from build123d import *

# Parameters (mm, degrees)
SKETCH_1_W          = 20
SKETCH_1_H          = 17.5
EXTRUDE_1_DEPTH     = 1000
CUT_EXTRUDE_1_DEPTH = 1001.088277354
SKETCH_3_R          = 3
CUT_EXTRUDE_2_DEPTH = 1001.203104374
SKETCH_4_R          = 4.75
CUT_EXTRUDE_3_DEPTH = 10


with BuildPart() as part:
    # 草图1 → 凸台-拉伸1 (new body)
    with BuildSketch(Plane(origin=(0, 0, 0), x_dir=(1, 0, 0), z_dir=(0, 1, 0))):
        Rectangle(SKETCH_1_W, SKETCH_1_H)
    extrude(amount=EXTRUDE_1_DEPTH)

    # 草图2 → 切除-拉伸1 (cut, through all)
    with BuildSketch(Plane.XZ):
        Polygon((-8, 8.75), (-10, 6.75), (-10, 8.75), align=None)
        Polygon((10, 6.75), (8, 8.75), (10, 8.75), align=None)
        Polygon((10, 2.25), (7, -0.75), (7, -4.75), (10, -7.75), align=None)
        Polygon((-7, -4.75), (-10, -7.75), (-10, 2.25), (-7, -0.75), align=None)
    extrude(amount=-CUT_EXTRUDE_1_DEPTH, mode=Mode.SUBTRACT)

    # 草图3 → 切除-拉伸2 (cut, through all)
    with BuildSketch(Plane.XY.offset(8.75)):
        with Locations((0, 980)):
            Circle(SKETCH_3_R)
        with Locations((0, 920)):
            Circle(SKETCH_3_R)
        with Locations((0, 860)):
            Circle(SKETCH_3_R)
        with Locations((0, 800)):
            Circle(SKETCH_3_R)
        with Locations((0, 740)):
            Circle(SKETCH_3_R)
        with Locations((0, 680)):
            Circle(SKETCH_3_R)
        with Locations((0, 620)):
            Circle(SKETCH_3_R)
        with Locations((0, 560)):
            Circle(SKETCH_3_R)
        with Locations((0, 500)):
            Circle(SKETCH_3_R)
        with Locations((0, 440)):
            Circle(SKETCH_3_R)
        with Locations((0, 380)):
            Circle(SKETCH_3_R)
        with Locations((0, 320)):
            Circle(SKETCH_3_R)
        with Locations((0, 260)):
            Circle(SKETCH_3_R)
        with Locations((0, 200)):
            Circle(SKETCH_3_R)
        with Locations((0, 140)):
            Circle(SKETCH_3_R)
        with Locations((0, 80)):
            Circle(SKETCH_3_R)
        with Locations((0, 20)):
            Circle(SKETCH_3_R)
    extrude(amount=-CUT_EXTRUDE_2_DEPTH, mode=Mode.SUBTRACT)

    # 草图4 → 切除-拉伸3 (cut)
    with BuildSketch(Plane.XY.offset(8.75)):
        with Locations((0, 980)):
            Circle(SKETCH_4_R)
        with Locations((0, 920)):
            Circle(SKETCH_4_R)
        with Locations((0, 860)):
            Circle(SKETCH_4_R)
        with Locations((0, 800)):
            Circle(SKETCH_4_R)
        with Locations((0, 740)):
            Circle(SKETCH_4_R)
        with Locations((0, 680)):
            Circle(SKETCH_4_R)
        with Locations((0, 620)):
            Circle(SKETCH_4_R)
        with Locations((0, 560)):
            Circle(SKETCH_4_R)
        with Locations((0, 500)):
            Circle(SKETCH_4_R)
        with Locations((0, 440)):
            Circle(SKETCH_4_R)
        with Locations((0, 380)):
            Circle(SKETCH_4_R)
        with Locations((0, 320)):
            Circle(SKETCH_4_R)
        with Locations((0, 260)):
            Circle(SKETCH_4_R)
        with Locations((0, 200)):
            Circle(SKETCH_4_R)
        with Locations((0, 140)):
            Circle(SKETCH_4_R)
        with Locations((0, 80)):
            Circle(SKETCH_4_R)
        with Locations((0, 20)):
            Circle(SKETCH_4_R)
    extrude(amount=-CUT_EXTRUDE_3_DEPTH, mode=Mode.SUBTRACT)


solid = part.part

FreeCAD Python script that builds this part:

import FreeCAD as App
import Part
import Sketcher

V = App.Vector

doc = App.newDocument("Part")
body = doc.addObject("PartDesign::Body", "Body")

# Sketch on XZ plane
sketch1 = body.newObject("Sketcher::SketchObject", "Sketch")
sketch1.AttachmentSupport = (doc.getObject("XZ_Plane"), [""])
sketch1.MapMode = "FlatFace"
sketch1.addGeometry(Part.LineSegment(V(-10, -9, 0), V(-10, 9, 0)), False)
sketch1.addGeometry(Part.LineSegment(V(-10, 9, 0), V(10, 9, 0)), False)
sketch1.addGeometry(Part.LineSegment(V(10, 9, 0), V(10, -9, 0)), False)
sketch1.addGeometry(Part.LineSegment(V(10, -9, 0), V(-10, -9, 0)), False)
sketch1.addConstraint(Sketcher.Constraint("Coincident", 0, 2, 1, 1))
sketch1.addConstraint(Sketcher.Constraint("Coincident", 1, 2, 2, 1))
sketch1.addConstraint(Sketcher.Constraint("Coincident", 2, 2, 3, 1))
sketch1.addConstraint(Sketcher.Constraint("Coincident", 3, 2, 0, 1))
sketch1.addConstraint(Sketcher.Constraint("Vertical", 0))
sketch1.addConstraint(Sketcher.Constraint("Horizontal", 1))
sketch1.addConstraint(Sketcher.Constraint("Vertical", 2))
sketch1.addConstraint(Sketcher.Constraint("Horizontal", 3))
sketch1.addConstraint(Sketcher.Constraint("Symmetric", 0, 2, 2, 2, -1, 1))
sketch1.addConstraint(Sketcher.Constraint("DistanceX", 1, 1, 1, 2, 20.0))
sketch1.addConstraint(Sketcher.Constraint("DistanceY", 0, 1, 0, 2, 17.5))
pad1 = body.newObject("PartDesign::Pad", "Pad")
pad1.Profile = sketch1
pad1.Length = 1000
pad1.Reversed = True

# Sketch on XZ plane
sketch2 = body.newObject("Sketcher::SketchObject", "Sketch001")
sketch2.AttachmentSupport = (doc.getObject("XZ_Plane"), [""])
sketch2.MapMode = "FlatFace"
sketch2.addGeometry(Part.LineSegment(V(-10, 6.8, 0), V(-8, 8.8, 0)), False)
sketch2.addGeometry(Part.LineSegment(V(-8, 8.8, 0), V(-10, 8.8, 0)), False)
sketch2.addGeometry(Part.LineSegment(V(-10, 8.8, 0), V(-10, 6.8, 0)), False)
sketch2.addGeometry(Part.LineSegment(V(8, 8.8, 0), V(10, 6.8, 0)), False)
sketch2.addGeometry(Part.LineSegment(V(10, 6.8, 0), V(10, 8.8, 0)), False)
sketch2.addGeometry(Part.LineSegment(V(10, 8.8, 0), V(8, 8.8, 0)), False)
sketch2.addGeometry(Part.LineSegment(V(10, 2.2, 0), V(7, -0.8, 0)), False)
sketch2.addGeometry(Part.LineSegment(V(7, -0.8, 0), V(7, -4.8, 0)), False)
sketch2.addGeometry(Part.LineSegment(V(7, -4.8, 0), V(10, -7.8, 0)), False)
sketch2.addGeometry(Part.LineSegment(V(10, -7.8, 0), V(10, 2.2, 0)), False)
sketch2.addGeometry(Part.LineSegment(V(-10, -7.8, 0), V(-7, -4.8, 0)), False)
sketch2.addGeometry(Part.LineSegment(V(-7, -4.8, 0), V(-7, -0.8, 0)), False)
sketch2.addGeometry(Part.LineSegment(V(-7, -0.8, 0), V(-10, 2.2, 0)), False)
sketch2.addGeometry(Part.LineSegment(V(-10, 2.2, 0), V(-10, -7.8, 0)), False)
sketch2.addConstraint(Sketcher.Constraint("Coincident", 0, 2, 1, 1))
sketch2.addConstraint(Sketcher.Constraint("Coincident", 1, 2, 2, 1))
sketch2.addConstraint(Sketcher.Constraint("Coincident", 2, 2, 0, 1))
sketch2.addConstraint(Sketcher.Constraint("Coincident", 3, 2, 4, 1))
sketch2.addConstraint(Sketcher.Constraint("Coincident", 4, 2, 5, 1))
sketch2.addConstraint(Sketcher.Constraint("Coincident", 5, 2, 3, 1))
sketch2.addConstraint(Sketcher.Constraint("Coincident", 6, 2, 7, 1))
sketch2.addConstraint(Sketcher.Constraint("Coincident", 7, 2, 8, 1))
sketch2.addConstraint(Sketcher.Constraint("Coincident", 8, 2, 9, 1))
sketch2.addConstraint(Sketcher.Constraint("Coincident", 9, 2, 6, 1))
sketch2.addConstraint(Sketcher.Constraint("Coincident", 10, 2, 11, 1))
sketch2.addConstraint(Sketcher.Constraint("Coincident", 11, 2, 12, 1))
sketch2.addConstraint(Sketcher.Constraint("Coincident", 12, 2, 13, 1))
sketch2.addConstraint(Sketcher.Constraint("Coincident", 13, 2, 10, 1))
sketch2.addConstraint(Sketcher.Constraint("Horizontal", 1))
sketch2.addConstraint(Sketcher.Constraint("Vertical", 2))
sketch2.addConstraint(Sketcher.Constraint("Vertical", 4))
sketch2.addConstraint(Sketcher.Constraint("Horizontal", 5))
sketch2.addConstraint(Sketcher.Constraint("Vertical", 7))
sketch2.addConstraint(Sketcher.Constraint("Vertical", 9))
sketch2.addConstraint(Sketcher.Constraint("Vertical", 11))
sketch2.addConstraint(Sketcher.Constraint("Vertical", 13))
sketch2.addConstraint(Sketcher.Constraint("Symmetric", 2, 2, 3, 2, -2))
sketch2.addConstraint(Sketcher.Constraint("Symmetric", 0, 2, 5, 2, -2))
sketch2.addConstraint(Sketcher.Constraint("Symmetric", 7, 2, 10, 2, -2))
sketch2.addConstraint(Sketcher.Constraint("Symmetric", 9, 2, 12, 2, -2))
sketch2.addConstraint(Sketcher.Constraint("Perpendicular", 0, 3))
sketch2.addConstraint(Sketcher.Constraint("Perpendicular", 3, 6))
sketch2.addConstraint(Sketcher.Constraint("Perpendicular", 6, 8))
sketch2.addConstraint(Sketcher.Constraint("Perpendicular", 8, 10))
sketch2.addConstraint(Sketcher.Constraint("Perpendicular", 10, 12))
sketch2.addConstraint(Sketcher.Constraint("Vertical", 4, 2, 8, 2))
sketch2.addConstraint(Sketcher.Constraint("DistanceX", 1, 2, 1, 1, 2.0))
sketch2.addConstraint(Sketcher.Constraint("DistanceY", 7, 2, 7, 1, 4.0))
sketch2.addConstraint(Sketcher.Constraint("DistanceY", 9, 1, 9, 2, 10.0))
sketch2.addConstraint(Sketcher.Constraint("DistanceX", 0, 2, -1, 1, 8.0))
sketch2.addConstraint(Sketcher.Constraint("DistanceY", 6, 2, 3, 2, 7.5))
sketch2.addConstraint(Sketcher.Constraint("DistanceY", -1, 1, 0, 2, 8.75))
pocket1 = body.newObject("PartDesign::Pocket", "Pocket")
pocket1.Profile = sketch2
pocket1.Type = "ThroughAll"

# Sketch on XY plane
sketch3 = body.newObject("Sketcher::SketchObject", "Sketch002")
sketch3.AttachmentSupport = (doc.getObject("XY_Plane"), [""])
sketch3.MapMode = "FlatFace"
sketch3.AttachmentOffset = App.Placement(V(0, 0, 8.75), App.Rotation())
sketch3.addGeometry(Part.Circle(V(0, 980, 0), V(0, 0, 1), 3), False)
sketch3.addGeometry(Part.Circle(V(0, 920, 0), V(0, 0, 1), 3), False)
sketch3.addGeometry(Part.Circle(V(0, 860, 0), V(0, 0, 1), 3), False)
sketch3.addGeometry(Part.Circle(V(0, 800, 0), V(0, 0, 1), 3), False)
sketch3.addGeometry(Part.Circle(V(0, 740, 0), V(0, 0, 1), 3), False)
sketch3.addGeometry(Part.Circle(V(0, 680, 0), V(0, 0, 1), 3), False)
sketch3.addGeometry(Part.Circle(V(0, 620, 0), V(0, 0, 1), 3), False)
sketch3.addGeometry(Part.Circle(V(0, 560, 0), V(0, 0, 1), 3), False)
sketch3.addGeometry(Part.Circle(V(0, 500, 0), V(0, 0, 1), 3), False)
sketch3.addGeometry(Part.Circle(V(0, 440, 0), V(0, 0, 1), 3), False)
sketch3.addGeometry(Part.Circle(V(0, 380, 0), V(0, 0, 1), 3), False)
sketch3.addGeometry(Part.Circle(V(0, 320, 0), V(0, 0, 1), 3), False)
sketch3.addGeometry(Part.Circle(V(0, 260, 0), V(0, 0, 1), 3), False)
sketch3.addGeometry(Part.Circle(V(0, 200, 0), V(0, 0, 1), 3), False)
sketch3.addGeometry(Part.Circle(V(0, 140, 0), V(0, 0, 1), 3), False)
sketch3.addGeometry(Part.Circle(V(0, 80, 0), V(0, 0, 1), 3), False)
sketch3.addGeometry(Part.Circle(V(0, 20, 0), V(0, 0, 1), 3), False)
sketch3.addConstraint(Sketcher.Constraint("Equal", 0, 1))
sketch3.addConstraint(Sketcher.Constraint("Equal", 1, 2))
sketch3.addConstraint(Sketcher.Constraint("Equal", 2, 3))
sketch3.addConstraint(Sketcher.Constraint("Equal", 3, 4))
sketch3.addConstraint(Sketcher.Constraint("Equal", 4, 5))
sketch3.addConstraint(Sketcher.Constraint("Equal", 5, 6))
sketch3.addConstraint(Sketcher.Constraint("Equal", 6, 7))
sketch3.addConstraint(Sketcher.Constraint("Equal", 7, 8))
sketch3.addConstraint(Sketcher.Constraint("Equal", 8, 9))
sketch3.addConstraint(Sketcher.Constraint("Equal", 9, 10))
sketch3.addConstraint(Sketcher.Constraint("Equal", 10, 11))
sketch3.addConstraint(Sketcher.Constraint("Equal", 11, 12))
sketch3.addConstraint(Sketcher.Constraint("Equal", 12, 13))
sketch3.addConstraint(Sketcher.Constraint("Equal", 13, 14))
sketch3.addConstraint(Sketcher.Constraint("Equal", 14, 15))
sketch3.addConstraint(Sketcher.Constraint("Equal", 15, 16))
sketch3.addConstraint(Sketcher.Constraint("PointOnObject", 0, 3, -2))
sketch3.addConstraint(Sketcher.Constraint("PointOnObject", 1, 3, -2))
sketch3.addConstraint(Sketcher.Constraint("PointOnObject", 2, 3, -2))
sketch3.addConstraint(Sketcher.Constraint("PointOnObject", 3, 3, -2))
sketch3.addConstraint(Sketcher.Constraint("PointOnObject", 4, 3, -2))
sketch3.addConstraint(Sketcher.Constraint("PointOnObject", 5, 3, -2))
sketch3.addConstraint(Sketcher.Constraint("PointOnObject", 6, 3, -2))
sketch3.addConstraint(Sketcher.Constraint("PointOnObject", 7, 3, -2))
sketch3.addConstraint(Sketcher.Constraint("PointOnObject", 8, 3, -2))
sketch3.addConstraint(Sketcher.Constraint("PointOnObject", 9, 3, -2))
sketch3.addConstraint(Sketcher.Constraint("PointOnObject", 10, 3, -2))
sketch3.addConstraint(Sketcher.Constraint("PointOnObject", 11, 3, -2))
sketch3.addConstraint(Sketcher.Constraint("PointOnObject", 12, 3, -2))
sketch3.addConstraint(Sketcher.Constraint("PointOnObject", 13, 3, -2))
sketch3.addConstraint(Sketcher.Constraint("PointOnObject", 14, 3, -2))
sketch3.addConstraint(Sketcher.Constraint("PointOnObject", 15, 3, -2))
sketch3.addConstraint(Sketcher.Constraint("PointOnObject", 16, 3, -2))
sketch3.addConstraint(Sketcher.Constraint("Diameter", 0, 6.0))
sketch3.addConstraint(Sketcher.Constraint("DistanceY", -1, 1, 0, 3, 980.0))
sketch3.addConstraint(Sketcher.Constraint("DistanceY", -1, 1, 1, 3, 920.0))
sketch3.addConstraint(Sketcher.Constraint("DistanceY", -1, 1, 2, 3, 860.0))
sketch3.addConstraint(Sketcher.Constraint("DistanceY", -1, 1, 3, 3, 800.0))
sketch3.addConstraint(Sketcher.Constraint("DistanceY", -1, 1, 4, 3, 740.0))
sketch3.addConstraint(Sketcher.Constraint("DistanceY", -1, 1, 5, 3, 680.0))
sketch3.addConstraint(Sketcher.Constraint("DistanceY", -1, 1, 6, 3, 620.0))
sketch3.addConstraint(Sketcher.Constraint("DistanceY", -1, 1, 7, 3, 560.0))
sketch3.addConstraint(Sketcher.Constraint("DistanceY", -1, 1, 8, 3, 500.0))
sketch3.addConstraint(Sketcher.Constraint("DistanceY", -1, 1, 9, 3, 440.0))
sketch3.addConstraint(Sketcher.Constraint("DistanceY", -1, 1, 10, 3, 380.0))
sketch3.addConstraint(Sketcher.Constraint("DistanceY", -1, 1, 11, 3, 320.0))
sketch3.addConstraint(Sketcher.Constraint("DistanceY", -1, 1, 12, 3, 260.0))
sketch3.addConstraint(Sketcher.Constraint("DistanceY", -1, 1, 13, 3, 200.0))
sketch3.addConstraint(Sketcher.Constraint("DistanceY", -1, 1, 14, 3, 140.0))
sketch3.addConstraint(Sketcher.Constraint("DistanceY", -1, 1, 15, 3, 80.0))
sketch3.addConstraint(Sketcher.Constraint("DistanceY", -1, 1, 16, 3, 20.0))
pocket2 = body.newObject("PartDesign::Pocket", "Pocket001")
pocket2.Profile = sketch3
pocket2.Type = "ThroughAll"

# Sketch on XY plane
sketch4 = body.newObject("Sketcher::SketchObject", "Sketch003")
sketch4.AttachmentSupport = (doc.getObject("XY_Plane"), [""])
sketch4.MapMode = "FlatFace"
sketch4.AttachmentOffset = App.Placement(V(0, 0, 8.75), App.Rotation())
sketch4.addGeometry(Part.Circle(V(0, 980, 0), V(0, 0, 1), 4.8), False)
sketch4.addGeometry(Part.Circle(V(0, 920, 0), V(0, 0, 1), 4.8), False)
sketch4.addGeometry(Part.Circle(V(0, 860, 0), V(0, 0, 1), 4.8), False)
sketch4.addGeometry(Part.Circle(V(0, 800, 0), V(0, 0, 1), 4.8), False)
sketch4.addGeometry(Part.Circle(V(0, 740, 0), V(0, 0, 1), 4.8), False)
sketch4.addGeometry(Part.Circle(V(0, 680, 0), V(0, 0, 1), 4.8), False)
sketch4.addGeometry(Part.Circle(V(0, 620, 0), V(0, 0, 1), 4.8), False)
sketch4.addGeometry(Part.Circle(V(0, 560, 0), V(0, 0, 1), 4.8), False)
sketch4.addGeometry(Part.Circle(V(0, 500, 0), V(0, 0, 1), 4.8), False)
sketch4.addGeometry(Part.Circle(V(0, 440, 0), V(0, 0, 1), 4.8), False)
sketch4.addGeometry(Part.Circle(V(0, 380, 0), V(0, 0, 1), 4.8), False)
sketch4.addGeometry(Part.Circle(V(0, 320, 0), V(0, 0, 1), 4.8), False)
sketch4.addGeometry(Part.Circle(V(0, 260, 0), V(0, 0, 1), 4.8), False)
sketch4.addGeometry(Part.Circle(V(0, 200, 0), V(0, 0, 1), 4.8), False)
sketch4.addGeometry(Part.Circle(V(0, 140, 0), V(0, 0, 1), 4.8), False)
sketch4.addGeometry(Part.Circle(V(0, 80, 0), V(0, 0, 1), 4.8), False)
sketch4.addGeometry(Part.Circle(V(0, 20, 0), V(0, 0, 1), 4.8), False)
sketch4.addConstraint(Sketcher.Constraint("Equal", 0, 1))
sketch4.addConstraint(Sketcher.Constraint("Equal", 1, 2))
sketch4.addConstraint(Sketcher.Constraint("Equal", 2, 3))
sketch4.addConstraint(Sketcher.Constraint("Equal", 3, 4))
sketch4.addConstraint(Sketcher.Constraint("Equal", 4, 5))
sketch4.addConstraint(Sketcher.Constraint("Equal", 5, 6))
sketch4.addConstraint(Sketcher.Constraint("Equal", 6, 7))
sketch4.addConstraint(Sketcher.Constraint("Equal", 7, 8))
sketch4.addConstraint(Sketcher.Constraint("Equal", 8, 9))
sketch4.addConstraint(Sketcher.Constraint("Equal", 9, 10))
sketch4.addConstraint(Sketcher.Constraint("Equal", 10, 11))
sketch4.addConstraint(Sketcher.Constraint("Equal", 11, 12))
sketch4.addConstraint(Sketcher.Constraint("Equal", 12, 13))
sketch4.addConstraint(Sketcher.Constraint("Equal", 13, 14))
sketch4.addConstraint(Sketcher.Constraint("Equal", 14, 15))
sketch4.addConstraint(Sketcher.Constraint("Equal", 15, 16))
sketch4.addConstraint(Sketcher.Constraint("PointOnObject", 0, 3, -2))
sketch4.addConstraint(Sketcher.Constraint("PointOnObject", 1, 3, -2))
sketch4.addConstraint(Sketcher.Constraint("PointOnObject", 2, 3, -2))
sketch4.addConstraint(Sketcher.Constraint("PointOnObject", 3, 3, -2))
sketch4.addConstraint(Sketcher.Constraint("PointOnObject", 4, 3, -2))
sketch4.addConstraint(Sketcher.Constraint("PointOnObject", 5, 3, -2))
sketch4.addConstraint(Sketcher.Constraint("PointOnObject", 6, 3, -2))
sketch4.addConstraint(Sketcher.Constraint("PointOnObject", 7, 3, -2))
sketch4.addConstraint(Sketcher.Constraint("PointOnObject", 8, 3, -2))
sketch4.addConstraint(Sketcher.Constraint("PointOnObject", 9, 3, -2))
sketch4.addConstraint(Sketcher.Constraint("PointOnObject", 10, 3, -2))
sketch4.addConstraint(Sketcher.Constraint("PointOnObject", 11, 3, -2))
sketch4.addConstraint(Sketcher.Constraint("PointOnObject", 12, 3, -2))
sketch4.addConstraint(Sketcher.Constraint("PointOnObject", 13, 3, -2))
sketch4.addConstraint(Sketcher.Constraint("PointOnObject", 14, 3, -2))
sketch4.addConstraint(Sketcher.Constraint("PointOnObject", 15, 3, -2))
sketch4.addConstraint(Sketcher.Constraint("PointOnObject", 16, 3, -2))
sketch4.addConstraint(Sketcher.Constraint("Diameter", 0, 9.5))
sketch4.addConstraint(Sketcher.Constraint("DistanceY", -1, 1, 0, 3, 980.0))
sketch4.addConstraint(Sketcher.Constraint("DistanceY", -1, 1, 1, 3, 920.0))
sketch4.addConstraint(Sketcher.Constraint("DistanceY", -1, 1, 2, 3, 860.0))
sketch4.addConstraint(Sketcher.Constraint("DistanceY", -1, 1, 3, 3, 800.0))
sketch4.addConstraint(Sketcher.Constraint("DistanceY", -1, 1, 4, 3, 740.0))
sketch4.addConstraint(Sketcher.Constraint("DistanceY", -1, 1, 5, 3, 680.0))
sketch4.addConstraint(Sketcher.Constraint("DistanceY", -1, 1, 6, 3, 620.0))
sketch4.addConstraint(Sketcher.Constraint("DistanceY", -1, 1, 7, 3, 560.0))
sketch4.addConstraint(Sketcher.Constraint("DistanceY", -1, 1, 8, 3, 500.0))
sketch4.addConstraint(Sketcher.Constraint("DistanceY", -1, 1, 9, 3, 440.0))
sketch4.addConstraint(Sketcher.Constraint("DistanceY", -1, 1, 10, 3, 380.0))
sketch4.addConstraint(Sketcher.Constraint("DistanceY", -1, 1, 11, 3, 320.0))
sketch4.addConstraint(Sketcher.Constraint("DistanceY", -1, 1, 12, 3, 260.0))
sketch4.addConstraint(Sketcher.Constraint("DistanceY", -1, 1, 13, 3, 200.0))
sketch4.addConstraint(Sketcher.Constraint("DistanceY", -1, 1, 14, 3, 140.0))
sketch4.addConstraint(Sketcher.Constraint("DistanceY", -1, 1, 15, 3, 80.0))
sketch4.addConstraint(Sketcher.Constraint("DistanceY", -1, 1, 16, 3, 20.0))
pocket3 = body.newObject("PartDesign::Pocket", "Pocket002")
pocket3.Profile = sketch4
pocket3.Length = 10

doc.recompute()
